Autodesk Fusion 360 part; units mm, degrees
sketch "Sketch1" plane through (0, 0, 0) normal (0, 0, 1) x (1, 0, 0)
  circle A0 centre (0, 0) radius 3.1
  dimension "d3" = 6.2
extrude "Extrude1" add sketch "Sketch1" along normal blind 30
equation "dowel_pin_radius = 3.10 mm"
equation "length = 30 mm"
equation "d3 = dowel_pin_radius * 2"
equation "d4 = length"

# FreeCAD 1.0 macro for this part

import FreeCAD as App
import Part
import Sketcher
Q = App.Units.Quantity

doc = App.newDocument("Part")
body = doc.addObject("PartDesign::Body", "Body")

# Sketch on XY plane
sketch1 = body.newObject("Sketcher::SketchObject", "Sketch")
sketch1.AttachmentSupport = (doc.getObject("XY_Plane"), [""])
sketch1.MapMode = "FlatFace"
sketch1.addGeometry(Part.Circle(App.Vector(0, 0, 0), App.Vector(0, 0, 1), 3.1), False)
sketch1.addConstraint(Sketcher.Constraint("Coincident", 0, 3, -1, 1))
sketch1.addConstraint(Sketcher.Constraint("Diameter", 0, Q("6.2 mm")))
pad1 = body.newObject("PartDesign::Pad", "Pad")
pad1.Profile = sketch1
pad1.Length = 30

doc.recompute()
